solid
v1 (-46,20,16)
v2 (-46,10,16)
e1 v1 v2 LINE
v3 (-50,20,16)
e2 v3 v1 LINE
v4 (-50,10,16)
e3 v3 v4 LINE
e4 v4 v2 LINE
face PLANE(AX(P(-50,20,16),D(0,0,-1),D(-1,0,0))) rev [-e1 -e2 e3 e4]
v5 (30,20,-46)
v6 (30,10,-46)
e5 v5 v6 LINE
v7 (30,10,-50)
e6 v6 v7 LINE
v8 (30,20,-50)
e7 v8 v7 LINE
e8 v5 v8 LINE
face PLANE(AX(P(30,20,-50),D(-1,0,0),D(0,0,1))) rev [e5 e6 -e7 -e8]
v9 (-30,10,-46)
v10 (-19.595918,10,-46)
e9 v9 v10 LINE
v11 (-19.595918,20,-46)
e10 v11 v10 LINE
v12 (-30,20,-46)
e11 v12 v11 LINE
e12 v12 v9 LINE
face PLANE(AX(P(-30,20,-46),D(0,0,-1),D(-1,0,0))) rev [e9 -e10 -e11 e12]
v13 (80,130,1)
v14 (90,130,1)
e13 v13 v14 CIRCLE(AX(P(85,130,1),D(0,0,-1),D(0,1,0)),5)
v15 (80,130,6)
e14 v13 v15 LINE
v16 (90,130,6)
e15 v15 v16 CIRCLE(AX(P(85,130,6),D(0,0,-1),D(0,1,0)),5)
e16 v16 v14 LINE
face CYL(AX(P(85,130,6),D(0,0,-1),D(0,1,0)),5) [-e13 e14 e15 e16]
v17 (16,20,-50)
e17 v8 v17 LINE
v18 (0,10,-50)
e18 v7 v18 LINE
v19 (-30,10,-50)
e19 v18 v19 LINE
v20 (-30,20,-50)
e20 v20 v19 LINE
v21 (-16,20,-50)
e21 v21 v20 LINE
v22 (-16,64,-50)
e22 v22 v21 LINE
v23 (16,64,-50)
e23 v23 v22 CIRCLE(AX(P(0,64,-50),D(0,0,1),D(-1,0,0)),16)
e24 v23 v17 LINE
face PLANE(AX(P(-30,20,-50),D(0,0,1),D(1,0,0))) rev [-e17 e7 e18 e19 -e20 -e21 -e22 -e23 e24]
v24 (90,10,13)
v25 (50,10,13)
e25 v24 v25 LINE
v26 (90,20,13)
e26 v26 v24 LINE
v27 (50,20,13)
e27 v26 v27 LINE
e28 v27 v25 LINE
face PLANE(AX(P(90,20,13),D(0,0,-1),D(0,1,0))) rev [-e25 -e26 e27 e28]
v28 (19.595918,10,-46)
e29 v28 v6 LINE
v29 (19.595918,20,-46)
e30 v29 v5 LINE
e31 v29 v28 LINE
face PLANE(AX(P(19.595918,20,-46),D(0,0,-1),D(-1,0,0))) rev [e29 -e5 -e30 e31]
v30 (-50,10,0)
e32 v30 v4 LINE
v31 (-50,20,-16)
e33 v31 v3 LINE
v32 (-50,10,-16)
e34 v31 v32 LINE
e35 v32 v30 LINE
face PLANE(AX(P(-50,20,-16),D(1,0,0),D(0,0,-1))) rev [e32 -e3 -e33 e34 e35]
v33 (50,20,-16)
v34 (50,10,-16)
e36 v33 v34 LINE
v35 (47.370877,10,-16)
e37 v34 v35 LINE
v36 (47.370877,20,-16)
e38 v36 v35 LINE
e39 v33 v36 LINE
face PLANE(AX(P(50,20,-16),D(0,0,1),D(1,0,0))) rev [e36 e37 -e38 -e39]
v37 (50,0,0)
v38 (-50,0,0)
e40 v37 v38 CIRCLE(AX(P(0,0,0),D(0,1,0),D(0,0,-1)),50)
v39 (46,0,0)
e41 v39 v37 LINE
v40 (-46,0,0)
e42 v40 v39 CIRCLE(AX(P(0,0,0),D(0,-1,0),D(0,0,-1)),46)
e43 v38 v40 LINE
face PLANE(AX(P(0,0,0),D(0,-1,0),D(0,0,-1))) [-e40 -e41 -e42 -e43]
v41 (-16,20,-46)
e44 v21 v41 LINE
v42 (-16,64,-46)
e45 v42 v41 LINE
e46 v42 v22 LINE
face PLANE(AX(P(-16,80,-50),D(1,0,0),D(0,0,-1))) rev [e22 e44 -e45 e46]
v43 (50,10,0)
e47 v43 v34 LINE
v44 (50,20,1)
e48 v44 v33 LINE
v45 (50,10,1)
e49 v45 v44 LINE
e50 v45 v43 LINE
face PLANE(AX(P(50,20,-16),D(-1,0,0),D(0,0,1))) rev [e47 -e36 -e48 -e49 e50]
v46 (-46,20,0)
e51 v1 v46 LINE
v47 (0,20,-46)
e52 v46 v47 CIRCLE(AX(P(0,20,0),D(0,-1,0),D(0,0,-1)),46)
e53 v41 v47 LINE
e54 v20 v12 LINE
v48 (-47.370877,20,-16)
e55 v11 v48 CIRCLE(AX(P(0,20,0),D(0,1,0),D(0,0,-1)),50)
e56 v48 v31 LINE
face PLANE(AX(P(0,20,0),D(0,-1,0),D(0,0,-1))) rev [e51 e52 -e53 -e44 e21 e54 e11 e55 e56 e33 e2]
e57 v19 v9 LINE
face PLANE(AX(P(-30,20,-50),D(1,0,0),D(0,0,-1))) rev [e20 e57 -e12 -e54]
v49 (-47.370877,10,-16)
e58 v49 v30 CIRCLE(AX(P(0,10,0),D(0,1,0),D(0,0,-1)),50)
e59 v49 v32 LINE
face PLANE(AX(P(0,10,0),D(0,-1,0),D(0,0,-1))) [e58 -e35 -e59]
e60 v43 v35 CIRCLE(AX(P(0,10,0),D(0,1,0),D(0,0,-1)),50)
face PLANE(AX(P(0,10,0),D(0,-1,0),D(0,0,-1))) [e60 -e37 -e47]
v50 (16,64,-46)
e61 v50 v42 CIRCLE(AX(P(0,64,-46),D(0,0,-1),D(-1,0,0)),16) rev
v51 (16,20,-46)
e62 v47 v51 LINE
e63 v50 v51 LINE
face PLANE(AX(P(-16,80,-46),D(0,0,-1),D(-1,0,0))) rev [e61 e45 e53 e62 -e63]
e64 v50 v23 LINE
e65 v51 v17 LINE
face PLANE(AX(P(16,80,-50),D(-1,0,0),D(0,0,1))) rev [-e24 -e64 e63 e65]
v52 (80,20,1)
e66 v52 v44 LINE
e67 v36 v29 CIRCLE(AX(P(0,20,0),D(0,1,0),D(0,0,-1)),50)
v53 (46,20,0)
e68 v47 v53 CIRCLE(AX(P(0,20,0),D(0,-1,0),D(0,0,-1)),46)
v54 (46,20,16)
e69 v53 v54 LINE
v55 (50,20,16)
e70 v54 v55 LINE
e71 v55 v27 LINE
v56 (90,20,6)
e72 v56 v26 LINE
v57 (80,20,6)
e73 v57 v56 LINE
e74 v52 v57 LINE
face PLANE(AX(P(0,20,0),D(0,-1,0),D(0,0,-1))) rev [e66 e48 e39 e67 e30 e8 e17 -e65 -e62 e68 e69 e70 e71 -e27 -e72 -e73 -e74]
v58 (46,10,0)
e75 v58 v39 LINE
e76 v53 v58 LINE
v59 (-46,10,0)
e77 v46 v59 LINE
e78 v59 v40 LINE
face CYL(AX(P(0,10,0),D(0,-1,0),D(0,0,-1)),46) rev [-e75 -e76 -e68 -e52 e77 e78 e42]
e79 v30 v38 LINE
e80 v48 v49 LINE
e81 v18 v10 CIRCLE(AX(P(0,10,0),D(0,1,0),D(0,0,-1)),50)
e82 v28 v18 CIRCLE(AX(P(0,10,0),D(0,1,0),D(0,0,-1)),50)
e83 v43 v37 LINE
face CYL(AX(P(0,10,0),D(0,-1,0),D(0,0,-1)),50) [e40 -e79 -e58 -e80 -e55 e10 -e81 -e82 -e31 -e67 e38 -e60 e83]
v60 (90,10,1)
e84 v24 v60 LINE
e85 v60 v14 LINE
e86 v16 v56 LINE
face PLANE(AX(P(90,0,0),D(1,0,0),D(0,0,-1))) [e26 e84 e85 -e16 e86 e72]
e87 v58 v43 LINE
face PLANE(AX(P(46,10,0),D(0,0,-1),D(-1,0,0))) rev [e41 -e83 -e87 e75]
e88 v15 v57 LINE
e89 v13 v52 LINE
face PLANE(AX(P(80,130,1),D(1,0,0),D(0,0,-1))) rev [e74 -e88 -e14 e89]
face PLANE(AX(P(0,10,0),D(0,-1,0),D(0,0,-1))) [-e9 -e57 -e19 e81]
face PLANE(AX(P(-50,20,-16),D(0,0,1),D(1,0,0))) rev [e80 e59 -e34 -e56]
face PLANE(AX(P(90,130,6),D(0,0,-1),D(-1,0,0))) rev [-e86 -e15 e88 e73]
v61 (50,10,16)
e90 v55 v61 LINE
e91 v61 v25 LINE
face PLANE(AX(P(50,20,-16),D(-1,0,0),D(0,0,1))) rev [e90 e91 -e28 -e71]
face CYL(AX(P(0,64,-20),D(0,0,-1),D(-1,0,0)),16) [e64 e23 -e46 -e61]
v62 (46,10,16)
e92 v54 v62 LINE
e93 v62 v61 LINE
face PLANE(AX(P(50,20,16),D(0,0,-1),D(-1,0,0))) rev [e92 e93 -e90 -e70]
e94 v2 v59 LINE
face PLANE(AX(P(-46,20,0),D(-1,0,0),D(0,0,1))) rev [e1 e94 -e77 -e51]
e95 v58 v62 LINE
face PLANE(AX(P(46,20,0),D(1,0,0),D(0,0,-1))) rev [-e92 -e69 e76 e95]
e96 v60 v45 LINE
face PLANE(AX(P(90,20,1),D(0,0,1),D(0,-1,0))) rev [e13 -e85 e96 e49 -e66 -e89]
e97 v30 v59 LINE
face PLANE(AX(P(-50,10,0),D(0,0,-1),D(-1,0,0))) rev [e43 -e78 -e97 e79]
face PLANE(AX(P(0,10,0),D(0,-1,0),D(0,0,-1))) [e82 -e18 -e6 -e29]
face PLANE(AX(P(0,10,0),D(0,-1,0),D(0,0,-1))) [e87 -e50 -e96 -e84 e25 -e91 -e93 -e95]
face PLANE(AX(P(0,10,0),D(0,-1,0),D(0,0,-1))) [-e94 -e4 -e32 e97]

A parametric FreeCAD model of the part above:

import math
import FreeCAD as App
import Part
import Sketcher


def add_polygon(sketch, points):
    """Adds a closed chain of lines whose ends are joined by coincident constraints."""
    first, n = sketch.GeometryCount, len(points)
    for a, b in zip(points, points[1:] + points[:1]):
        sketch.addGeometry(Part.LineSegment(App.Vector(*a, 0), App.Vector(*b, 0)), False)
    for i in range(n):
        sketch.addConstraint(Sketcher.Constraint("Coincident", first + i, 2, first + (i + 1) % n, 1))

doc = App.newDocument("Part")
body = doc.addObject("PartDesign::Body", "Body")

# Sketch on XZ plane
sketch1 = doc.addObject("Sketcher::SketchObject", "Sketch")
body.addObject(sketch1)
sketch1.AttachmentSupport = (doc.XZ_Plane, [""])
sketch1.MapMode = "FlatFace"
sketch1.addGeometry([
    Part.LineSegment(App.Vector(-50, 0, 0), App.Vector(-46, 0, 0)),
    Part.ArcOfCircle(Part.Circle(App.Vector(0, 0, 0), App.Vector(0, 0, 1), 46), math.radians(180), math.radians(360)),
    Part.LineSegment(App.Vector(46, 0, 0), App.Vector(50, 0, 0)),
    Part.ArcOfCircle(Part.Circle(App.Vector(0, 0, 0), App.Vector(0, 0, 1), 50), math.radians(180), math.radians(360)),
], False)
sketch1.addConstraint([
    Sketcher.Constraint("Coincident", 0, 2, 1, 1),
    Sketcher.Constraint("Coincident", 1, 2, 2, 1),
    Sketcher.Constraint("Coincident", 2, 2, 3, 2),
    Sketcher.Constraint("Coincident", 3, 1, 0, 1),
    Sketcher.Constraint("Horizontal", 0),
    Sketcher.Constraint("Horizontal", 2),
    Sketcher.Constraint("Coincident", 1, 3, -1, 1),
    Sketcher.Constraint("Coincident", 3, 3, -1, 1),
    Sketcher.Constraint("PointOnObject", 0, 2, -1),
    Sketcher.Constraint("PointOnObject", 1, 2, -1),
    Sketcher.Constraint("Radius", 1, 46.0),
    Sketcher.Constraint("Radius", 3, 50.0),
])
pad1 = doc.addObject("PartDesign::Pad", "Pad")
body.addObject(pad1)
pad1.Profile = sketch1
pad1.Length = 10
pad1.Reversed = True

# Sketch on XZ plane
sketch2 = doc.addObject("Sketcher::SketchObject", "Sketch001")
body.addObject(sketch2)
sketch2.AttachmentSupport = (doc.XZ_Plane, [""])
sketch2.MapMode = "FlatFace"
sketch2.AttachmentOffset = App.Placement(App.Vector(0, 0, -10), App.Rotation())
sketch2.addGeometry([
    Part.LineSegment(App.Vector(-47.370877, -16, 0), App.Vector(-50, -16, 0)),  # 0
    Part.LineSegment(App.Vector(-50, -16, 0), App.Vector(-50, 16, 0)),  # 1
    Part.LineSegment(App.Vector(-50, 16, 0), App.Vector(-46, 16, 0)),  # 2
    Part.LineSegment(App.Vector(-46, 16, 0), App.Vector(-46, 0, 0)),  # 3
    Part.ArcOfCircle(Part.Circle(App.Vector(0, 0, 0), App.Vector(0, 0, 1), 46), math.radians(180), math.radians(360)),  # 4
    Part.LineSegment(App.Vector(46, 0, 0), App.Vector(46, 16, 0)),  # 5
    Part.LineSegment(App.Vector(46, 16, 0), App.Vector(50, 16, 0)),  # 6
    Part.LineSegment(App.Vector(50, 16, 0), App.Vector(50, -16, 0)),  # 7
    Part.LineSegment(App.Vector(50, -16, 0), App.Vector(47.370877, -16, 0)),  # 8
    Part.ArcOfCircle(Part.Circle(App.Vector(0, 0, 0), App.Vector(0, 0, 1), 50), math.radians(-66.926082), math.radians(-18.662925)),  # 9
    Part.LineSegment(App.Vector(19.595918, -46, 0), App.Vector(30, -46, 0)),  # 10
    Part.LineSegment(App.Vector(30, -46, 0), App.Vector(30, -50, 0)),  # 11
    Part.LineSegment(App.Vector(30, -50, 0), App.Vector(-30, -50, 0)),  # 12
    Part.LineSegment(App.Vector(-30, -50, 0), App.Vector(-30, -46, 0)),  # 13
    Part.LineSegment(App.Vector(-30, -46, 0), App.Vector(-19.595918, -46, 0)),  # 14
    Part.ArcOfCircle(Part.Circle(App.Vector(0, 0, 0), App.Vector(0, 0, 1), 50), math.radians(-161.337075), math.radians(-113.073918)),  # 15
], False)
sketch2.addConstraint([
    Sketcher.Constraint("Coincident", 0, 2, 1, 1),
    Sketcher.Constraint("Coincident", 1, 2, 2, 1),
    Sketcher.Constraint("Coincident", 2, 2, 3, 1),
    Sketcher.Constraint("Tangent", 3, 2, 4, 1),
    Sketcher.Constraint("Tangent", 4, 2, 5, 1),
    Sketcher.Constraint("Coincident", 5, 2, 6, 1),
    Sketcher.Constraint("Coincident", 6, 2, 7, 1),
    Sketcher.Constraint("Coincident", 7, 2, 8, 1),
    Sketcher.Constraint("Coincident", 8, 2, 9, 2),
    Sketcher.Constraint("Coincident", 9, 1, 10, 1),
    Sketcher.Constraint("Coincident", 10, 2, 11, 1),
    Sketcher.Constraint("Coincident", 11, 2, 12, 1),
    Sketcher.Constraint("Coincident", 12, 2, 13, 1),
    Sketcher.Constraint("Coincident", 13, 2, 14, 1),
    Sketcher.Constraint("Coincident", 14, 2, 15, 2),
    Sketcher.Constraint("Coincident", 15, 1, 0, 1),
    Sketcher.Constraint("Horizontal", 0),
    Sketcher.Constraint("Vertical", 1),
    Sketcher.Constraint("Horizontal", 2),
    Sketcher.Constraint("Vertical", 3),
    Sketcher.Constraint("Vertical", 5),
    Sketcher.Constraint("Horizontal", 6),
    Sketcher.Constraint("Vertical", 7),
    Sketcher.Constraint("Horizontal", 8),
    Sketcher.Constraint("Horizontal", 10),
    Sketcher.Constraint("Vertical", 11),
    Sketcher.Constraint("Horizontal", 12),
    Sketcher.Constraint("Vertical", 13),
    Sketcher.Constraint("Horizontal", 14),
    Sketcher.Constraint("Coincident", 4, 3, -1, 1),
    Sketcher.Constraint("Coincident", 9, 3, -1, 1),
    Sketcher.Constraint("Coincident", 15, 3, -1, 1),
    Sketcher.Constraint("Equal", 9, 15),
    Sketcher.Constraint("Symmetric", 0, 2, 6, 2, -1, 1),
    Sketcher.Constraint("Symmetric", 10, 2, 13, 2, -2),
    Sketcher.Constraint("Horizontal", 2, 2, 5, 2),
    Sketcher.Constraint("Horizontal", 0, 2, 7, 2),
    Sketcher.Constraint("Equal", 6, 11),
    Sketcher.Constraint("Radius", 4, 46.0),
    Sketcher.Constraint("Radius", 9, 50.0),
    Sketcher.Constraint("DistanceX", 2, 1, 2, 2, 4.0),
    Sketcher.Constraint("DistanceX", 12, 2, 12, 1, 60.0),
    Sketcher.Constraint("DistanceY", 1, 1, 1, 2, 32.0),
    Sketcher.Constraint("DistanceY", 9, 1, -1, 1, 46.0),
])
pad2 = doc.addObject("PartDesign::Pad", "Pad001")
body.addObject(pad2)
pad2.Profile = sketch2
pad2.Length = 10
pad2.Reversed = True

# Sketch on XZ plane
sketch3 = doc.addObject("Sketcher::SketchObject", "Sketch002")
body.addObject(sketch3)
sketch3.AttachmentSupport = (doc.XZ_Plane, [""])
sketch3.MapMode = "FlatFace"
sketch3.AttachmentOffset = App.Placement(App.Vector(0, 0, -20), App.Rotation())
add_polygon(sketch3, [(-16, -50), (-16, -46), (16, -46), (16, -50)])  # lines 0-3
sketch3.addConstraint([
    Sketcher.Constraint("Vertical", 0),
    Sketcher.Constraint("Horizontal", 1),
    Sketcher.Constraint("Vertical", 2),
    Sketcher.Constraint("Horizontal", 3),
    Sketcher.Constraint("DistanceX", 1, 1, 1, 2, 32.0),
    Sketcher.Constraint("DistanceY", 0, 1, 0, 2, 4.0),
    Sketcher.Constraint("DistanceX", 0, 2, -1, 1, 16.0),
    Sketcher.Constraint("DistanceY", 0, 2, -1, 1, 46.0),
])
pad3 = doc.addObject("PartDesign::Pad", "Pad002")
body.addObject(pad3)
pad3.Profile = sketch3
pad3.Length = 60
pad3.Reversed = True

# Sketch on XY plane
sketch4 = doc.addObject("Sketcher::SketchObject", "Sketch003")
body.addObject(sketch4)
sketch4.AttachmentSupport = (doc.XY_Plane, [""])
sketch4.MapMode = "FlatFace"
sketch4.AttachmentOffset = App.Placement(App.Vector(0, 0, -50), App.Rotation())
sketch4.addGeometry([
    Part.LineSegment(App.Vector(16, 97.905328, 0), App.Vector(16, 64, 0)),
    Part.ArcOfCircle(Part.Circle(App.Vector(0, 64, 0), App.Vector(0, 0, 1), 16), math.radians(0), math.radians(180)),
    Part.LineSegment(App.Vector(-16, 64, 0), App.Vector(-16, 97.905328, 0)),
    Part.LineSegment(App.Vector(-16, 97.905328, 0), App.Vector(16, 97.905328, 0)),
], False)
sketch4.addConstraint([
    Sketcher.Constraint("Tangent", 0, 2, 1, 1),
    Sketcher.Constraint("Tangent", 1, 2, 2, 1),
    Sketcher.Constraint("Coincident", 2, 2, 3, 1),
    Sketcher.Constraint("Coincident", 3, 2, 0, 1),
    Sketcher.Constraint("Vertical", 0),
    Sketcher.Constraint("Vertical", 2),
    Sketcher.Constraint("Horizontal", 3),
    Sketcher.Constraint("PointOnObject", 1, 3, -2),
    Sketcher.Constraint("Radius", 1, 16.0),
    Sketcher.Constraint("DistanceY", -1, 1, 1, 3, 64.0),
    Sketcher.Constraint("DistanceY", 0, 2, 0, 1, 33.905328),
])
pocket1 = doc.addObject("PartDesign::Pocket", "Pocket")
body.addObject(pocket1)
pocket1.Profile = sketch4
pocket1.Length = 30
pocket1.Reversed = True

# Sketch on YZ plane
sketch5 = doc.addObject("Sketcher::SketchObject", "Sketch004")
body.addObject(sketch5)
sketch5.AttachmentSupport = (doc.YZ_Plane, [""])
sketch5.MapMode = "FlatFace"
sketch5.AttachmentOffset = App.Placement(App.Vector(0, 0, 50), App.Rotation())
add_polygon(sketch5, [(20, 13), (10, 13), (10, 1), (20, 1)])  # lines 0-3
sketch5.addConstraint([
    Sketcher.Constraint("Horizontal", 0),
    Sketcher.Constraint("Vertical", 1),
    Sketcher.Constraint("Horizontal", 2),
    Sketcher.Constraint("Vertical", 3),
    Sketcher.Constraint("DistanceX", 0, 2, 0, 1, 10.0),
    Sketcher.Constraint("DistanceY", 1, 2, 1, 1, 12.0),
    Sketcher.Constraint("DistanceX", -1, 1, 0, 2, 10.0),
    Sketcher.Constraint("DistanceY", -1, 1, 0, 2, 13.0),
])
pad4 = doc.addObject("PartDesign::Pad", "Pad003")
body.addObject(pad4)
pad4.Profile = sketch5
pad4.Length = 40

# Sketch on XZ plane
sketch6 = doc.addObject("Sketcher::SketchObject", "Sketch005")
body.addObject(sketch6)
sketch6.AttachmentSupport = (doc.XZ_Plane, [""])
sketch6.MapMode = "FlatFace"
sketch6.AttachmentOffset = App.Placement(App.Vector(0, 0, -20), App.Rotation())
add_polygon(sketch6, [(80, 1), (80, 6), (90, 6), (90, 1)])  # lines 0-3
sketch6.addConstraint([
    Sketcher.Constraint("Vertical", 0),
    Sketcher.Constraint("Horizontal", 1),
    Sketcher.Constraint("Vertical", 2),
    Sketcher.Constraint("Horizontal", 3),
    Sketcher.Constraint("DistanceX", 1, 1, 1, 2, 10.0),
    Sketcher.Constraint("DistanceY", 0, 1, 0, 2, 5.0),
    Sketcher.Constraint("DistanceX", -1, 1, 0, 2, 80.0),
    Sketcher.Constraint("DistanceY", -1, 1, 0, 2, 6.0),
])
pad5 = doc.addObject("PartDesign::Pad", "Pad004")
body.addObject(pad5)
pad5.Profile = sketch6
pad5.Length = 110
pad5.Reversed = True

# Sketch on XY plane
sketch7 = doc.addObject("Sketcher::SketchObject", "Sketch006")
body.addObject(sketch7)
sketch7.AttachmentSupport = (doc.XY_Plane, [""])
sketch7.MapMode = "FlatFace"
sketch7.AttachmentOffset = App.Placement(App.Vector(0, 0, 1), App.Rotation())
sketch7.addGeometry(Part.Circle(App.Vector(85, 130, 0), App.Vector(0, 0, 1), 5), False)
sketch7.addConstraint([
    Sketcher.Constraint("Diameter", 0, 10.0),
    Sketcher.Constraint("DistanceX", -1, 1, 0, 3, 85.0),
    Sketcher.Constraint("DistanceY", -1, 1, 0, 3, 130.0),
])
pad6 = doc.addObject("PartDesign::Pad", "Pad005")
body.addObject(pad6)
pad6.Profile = sketch7
pad6.Length = 5

doc.recompute()
